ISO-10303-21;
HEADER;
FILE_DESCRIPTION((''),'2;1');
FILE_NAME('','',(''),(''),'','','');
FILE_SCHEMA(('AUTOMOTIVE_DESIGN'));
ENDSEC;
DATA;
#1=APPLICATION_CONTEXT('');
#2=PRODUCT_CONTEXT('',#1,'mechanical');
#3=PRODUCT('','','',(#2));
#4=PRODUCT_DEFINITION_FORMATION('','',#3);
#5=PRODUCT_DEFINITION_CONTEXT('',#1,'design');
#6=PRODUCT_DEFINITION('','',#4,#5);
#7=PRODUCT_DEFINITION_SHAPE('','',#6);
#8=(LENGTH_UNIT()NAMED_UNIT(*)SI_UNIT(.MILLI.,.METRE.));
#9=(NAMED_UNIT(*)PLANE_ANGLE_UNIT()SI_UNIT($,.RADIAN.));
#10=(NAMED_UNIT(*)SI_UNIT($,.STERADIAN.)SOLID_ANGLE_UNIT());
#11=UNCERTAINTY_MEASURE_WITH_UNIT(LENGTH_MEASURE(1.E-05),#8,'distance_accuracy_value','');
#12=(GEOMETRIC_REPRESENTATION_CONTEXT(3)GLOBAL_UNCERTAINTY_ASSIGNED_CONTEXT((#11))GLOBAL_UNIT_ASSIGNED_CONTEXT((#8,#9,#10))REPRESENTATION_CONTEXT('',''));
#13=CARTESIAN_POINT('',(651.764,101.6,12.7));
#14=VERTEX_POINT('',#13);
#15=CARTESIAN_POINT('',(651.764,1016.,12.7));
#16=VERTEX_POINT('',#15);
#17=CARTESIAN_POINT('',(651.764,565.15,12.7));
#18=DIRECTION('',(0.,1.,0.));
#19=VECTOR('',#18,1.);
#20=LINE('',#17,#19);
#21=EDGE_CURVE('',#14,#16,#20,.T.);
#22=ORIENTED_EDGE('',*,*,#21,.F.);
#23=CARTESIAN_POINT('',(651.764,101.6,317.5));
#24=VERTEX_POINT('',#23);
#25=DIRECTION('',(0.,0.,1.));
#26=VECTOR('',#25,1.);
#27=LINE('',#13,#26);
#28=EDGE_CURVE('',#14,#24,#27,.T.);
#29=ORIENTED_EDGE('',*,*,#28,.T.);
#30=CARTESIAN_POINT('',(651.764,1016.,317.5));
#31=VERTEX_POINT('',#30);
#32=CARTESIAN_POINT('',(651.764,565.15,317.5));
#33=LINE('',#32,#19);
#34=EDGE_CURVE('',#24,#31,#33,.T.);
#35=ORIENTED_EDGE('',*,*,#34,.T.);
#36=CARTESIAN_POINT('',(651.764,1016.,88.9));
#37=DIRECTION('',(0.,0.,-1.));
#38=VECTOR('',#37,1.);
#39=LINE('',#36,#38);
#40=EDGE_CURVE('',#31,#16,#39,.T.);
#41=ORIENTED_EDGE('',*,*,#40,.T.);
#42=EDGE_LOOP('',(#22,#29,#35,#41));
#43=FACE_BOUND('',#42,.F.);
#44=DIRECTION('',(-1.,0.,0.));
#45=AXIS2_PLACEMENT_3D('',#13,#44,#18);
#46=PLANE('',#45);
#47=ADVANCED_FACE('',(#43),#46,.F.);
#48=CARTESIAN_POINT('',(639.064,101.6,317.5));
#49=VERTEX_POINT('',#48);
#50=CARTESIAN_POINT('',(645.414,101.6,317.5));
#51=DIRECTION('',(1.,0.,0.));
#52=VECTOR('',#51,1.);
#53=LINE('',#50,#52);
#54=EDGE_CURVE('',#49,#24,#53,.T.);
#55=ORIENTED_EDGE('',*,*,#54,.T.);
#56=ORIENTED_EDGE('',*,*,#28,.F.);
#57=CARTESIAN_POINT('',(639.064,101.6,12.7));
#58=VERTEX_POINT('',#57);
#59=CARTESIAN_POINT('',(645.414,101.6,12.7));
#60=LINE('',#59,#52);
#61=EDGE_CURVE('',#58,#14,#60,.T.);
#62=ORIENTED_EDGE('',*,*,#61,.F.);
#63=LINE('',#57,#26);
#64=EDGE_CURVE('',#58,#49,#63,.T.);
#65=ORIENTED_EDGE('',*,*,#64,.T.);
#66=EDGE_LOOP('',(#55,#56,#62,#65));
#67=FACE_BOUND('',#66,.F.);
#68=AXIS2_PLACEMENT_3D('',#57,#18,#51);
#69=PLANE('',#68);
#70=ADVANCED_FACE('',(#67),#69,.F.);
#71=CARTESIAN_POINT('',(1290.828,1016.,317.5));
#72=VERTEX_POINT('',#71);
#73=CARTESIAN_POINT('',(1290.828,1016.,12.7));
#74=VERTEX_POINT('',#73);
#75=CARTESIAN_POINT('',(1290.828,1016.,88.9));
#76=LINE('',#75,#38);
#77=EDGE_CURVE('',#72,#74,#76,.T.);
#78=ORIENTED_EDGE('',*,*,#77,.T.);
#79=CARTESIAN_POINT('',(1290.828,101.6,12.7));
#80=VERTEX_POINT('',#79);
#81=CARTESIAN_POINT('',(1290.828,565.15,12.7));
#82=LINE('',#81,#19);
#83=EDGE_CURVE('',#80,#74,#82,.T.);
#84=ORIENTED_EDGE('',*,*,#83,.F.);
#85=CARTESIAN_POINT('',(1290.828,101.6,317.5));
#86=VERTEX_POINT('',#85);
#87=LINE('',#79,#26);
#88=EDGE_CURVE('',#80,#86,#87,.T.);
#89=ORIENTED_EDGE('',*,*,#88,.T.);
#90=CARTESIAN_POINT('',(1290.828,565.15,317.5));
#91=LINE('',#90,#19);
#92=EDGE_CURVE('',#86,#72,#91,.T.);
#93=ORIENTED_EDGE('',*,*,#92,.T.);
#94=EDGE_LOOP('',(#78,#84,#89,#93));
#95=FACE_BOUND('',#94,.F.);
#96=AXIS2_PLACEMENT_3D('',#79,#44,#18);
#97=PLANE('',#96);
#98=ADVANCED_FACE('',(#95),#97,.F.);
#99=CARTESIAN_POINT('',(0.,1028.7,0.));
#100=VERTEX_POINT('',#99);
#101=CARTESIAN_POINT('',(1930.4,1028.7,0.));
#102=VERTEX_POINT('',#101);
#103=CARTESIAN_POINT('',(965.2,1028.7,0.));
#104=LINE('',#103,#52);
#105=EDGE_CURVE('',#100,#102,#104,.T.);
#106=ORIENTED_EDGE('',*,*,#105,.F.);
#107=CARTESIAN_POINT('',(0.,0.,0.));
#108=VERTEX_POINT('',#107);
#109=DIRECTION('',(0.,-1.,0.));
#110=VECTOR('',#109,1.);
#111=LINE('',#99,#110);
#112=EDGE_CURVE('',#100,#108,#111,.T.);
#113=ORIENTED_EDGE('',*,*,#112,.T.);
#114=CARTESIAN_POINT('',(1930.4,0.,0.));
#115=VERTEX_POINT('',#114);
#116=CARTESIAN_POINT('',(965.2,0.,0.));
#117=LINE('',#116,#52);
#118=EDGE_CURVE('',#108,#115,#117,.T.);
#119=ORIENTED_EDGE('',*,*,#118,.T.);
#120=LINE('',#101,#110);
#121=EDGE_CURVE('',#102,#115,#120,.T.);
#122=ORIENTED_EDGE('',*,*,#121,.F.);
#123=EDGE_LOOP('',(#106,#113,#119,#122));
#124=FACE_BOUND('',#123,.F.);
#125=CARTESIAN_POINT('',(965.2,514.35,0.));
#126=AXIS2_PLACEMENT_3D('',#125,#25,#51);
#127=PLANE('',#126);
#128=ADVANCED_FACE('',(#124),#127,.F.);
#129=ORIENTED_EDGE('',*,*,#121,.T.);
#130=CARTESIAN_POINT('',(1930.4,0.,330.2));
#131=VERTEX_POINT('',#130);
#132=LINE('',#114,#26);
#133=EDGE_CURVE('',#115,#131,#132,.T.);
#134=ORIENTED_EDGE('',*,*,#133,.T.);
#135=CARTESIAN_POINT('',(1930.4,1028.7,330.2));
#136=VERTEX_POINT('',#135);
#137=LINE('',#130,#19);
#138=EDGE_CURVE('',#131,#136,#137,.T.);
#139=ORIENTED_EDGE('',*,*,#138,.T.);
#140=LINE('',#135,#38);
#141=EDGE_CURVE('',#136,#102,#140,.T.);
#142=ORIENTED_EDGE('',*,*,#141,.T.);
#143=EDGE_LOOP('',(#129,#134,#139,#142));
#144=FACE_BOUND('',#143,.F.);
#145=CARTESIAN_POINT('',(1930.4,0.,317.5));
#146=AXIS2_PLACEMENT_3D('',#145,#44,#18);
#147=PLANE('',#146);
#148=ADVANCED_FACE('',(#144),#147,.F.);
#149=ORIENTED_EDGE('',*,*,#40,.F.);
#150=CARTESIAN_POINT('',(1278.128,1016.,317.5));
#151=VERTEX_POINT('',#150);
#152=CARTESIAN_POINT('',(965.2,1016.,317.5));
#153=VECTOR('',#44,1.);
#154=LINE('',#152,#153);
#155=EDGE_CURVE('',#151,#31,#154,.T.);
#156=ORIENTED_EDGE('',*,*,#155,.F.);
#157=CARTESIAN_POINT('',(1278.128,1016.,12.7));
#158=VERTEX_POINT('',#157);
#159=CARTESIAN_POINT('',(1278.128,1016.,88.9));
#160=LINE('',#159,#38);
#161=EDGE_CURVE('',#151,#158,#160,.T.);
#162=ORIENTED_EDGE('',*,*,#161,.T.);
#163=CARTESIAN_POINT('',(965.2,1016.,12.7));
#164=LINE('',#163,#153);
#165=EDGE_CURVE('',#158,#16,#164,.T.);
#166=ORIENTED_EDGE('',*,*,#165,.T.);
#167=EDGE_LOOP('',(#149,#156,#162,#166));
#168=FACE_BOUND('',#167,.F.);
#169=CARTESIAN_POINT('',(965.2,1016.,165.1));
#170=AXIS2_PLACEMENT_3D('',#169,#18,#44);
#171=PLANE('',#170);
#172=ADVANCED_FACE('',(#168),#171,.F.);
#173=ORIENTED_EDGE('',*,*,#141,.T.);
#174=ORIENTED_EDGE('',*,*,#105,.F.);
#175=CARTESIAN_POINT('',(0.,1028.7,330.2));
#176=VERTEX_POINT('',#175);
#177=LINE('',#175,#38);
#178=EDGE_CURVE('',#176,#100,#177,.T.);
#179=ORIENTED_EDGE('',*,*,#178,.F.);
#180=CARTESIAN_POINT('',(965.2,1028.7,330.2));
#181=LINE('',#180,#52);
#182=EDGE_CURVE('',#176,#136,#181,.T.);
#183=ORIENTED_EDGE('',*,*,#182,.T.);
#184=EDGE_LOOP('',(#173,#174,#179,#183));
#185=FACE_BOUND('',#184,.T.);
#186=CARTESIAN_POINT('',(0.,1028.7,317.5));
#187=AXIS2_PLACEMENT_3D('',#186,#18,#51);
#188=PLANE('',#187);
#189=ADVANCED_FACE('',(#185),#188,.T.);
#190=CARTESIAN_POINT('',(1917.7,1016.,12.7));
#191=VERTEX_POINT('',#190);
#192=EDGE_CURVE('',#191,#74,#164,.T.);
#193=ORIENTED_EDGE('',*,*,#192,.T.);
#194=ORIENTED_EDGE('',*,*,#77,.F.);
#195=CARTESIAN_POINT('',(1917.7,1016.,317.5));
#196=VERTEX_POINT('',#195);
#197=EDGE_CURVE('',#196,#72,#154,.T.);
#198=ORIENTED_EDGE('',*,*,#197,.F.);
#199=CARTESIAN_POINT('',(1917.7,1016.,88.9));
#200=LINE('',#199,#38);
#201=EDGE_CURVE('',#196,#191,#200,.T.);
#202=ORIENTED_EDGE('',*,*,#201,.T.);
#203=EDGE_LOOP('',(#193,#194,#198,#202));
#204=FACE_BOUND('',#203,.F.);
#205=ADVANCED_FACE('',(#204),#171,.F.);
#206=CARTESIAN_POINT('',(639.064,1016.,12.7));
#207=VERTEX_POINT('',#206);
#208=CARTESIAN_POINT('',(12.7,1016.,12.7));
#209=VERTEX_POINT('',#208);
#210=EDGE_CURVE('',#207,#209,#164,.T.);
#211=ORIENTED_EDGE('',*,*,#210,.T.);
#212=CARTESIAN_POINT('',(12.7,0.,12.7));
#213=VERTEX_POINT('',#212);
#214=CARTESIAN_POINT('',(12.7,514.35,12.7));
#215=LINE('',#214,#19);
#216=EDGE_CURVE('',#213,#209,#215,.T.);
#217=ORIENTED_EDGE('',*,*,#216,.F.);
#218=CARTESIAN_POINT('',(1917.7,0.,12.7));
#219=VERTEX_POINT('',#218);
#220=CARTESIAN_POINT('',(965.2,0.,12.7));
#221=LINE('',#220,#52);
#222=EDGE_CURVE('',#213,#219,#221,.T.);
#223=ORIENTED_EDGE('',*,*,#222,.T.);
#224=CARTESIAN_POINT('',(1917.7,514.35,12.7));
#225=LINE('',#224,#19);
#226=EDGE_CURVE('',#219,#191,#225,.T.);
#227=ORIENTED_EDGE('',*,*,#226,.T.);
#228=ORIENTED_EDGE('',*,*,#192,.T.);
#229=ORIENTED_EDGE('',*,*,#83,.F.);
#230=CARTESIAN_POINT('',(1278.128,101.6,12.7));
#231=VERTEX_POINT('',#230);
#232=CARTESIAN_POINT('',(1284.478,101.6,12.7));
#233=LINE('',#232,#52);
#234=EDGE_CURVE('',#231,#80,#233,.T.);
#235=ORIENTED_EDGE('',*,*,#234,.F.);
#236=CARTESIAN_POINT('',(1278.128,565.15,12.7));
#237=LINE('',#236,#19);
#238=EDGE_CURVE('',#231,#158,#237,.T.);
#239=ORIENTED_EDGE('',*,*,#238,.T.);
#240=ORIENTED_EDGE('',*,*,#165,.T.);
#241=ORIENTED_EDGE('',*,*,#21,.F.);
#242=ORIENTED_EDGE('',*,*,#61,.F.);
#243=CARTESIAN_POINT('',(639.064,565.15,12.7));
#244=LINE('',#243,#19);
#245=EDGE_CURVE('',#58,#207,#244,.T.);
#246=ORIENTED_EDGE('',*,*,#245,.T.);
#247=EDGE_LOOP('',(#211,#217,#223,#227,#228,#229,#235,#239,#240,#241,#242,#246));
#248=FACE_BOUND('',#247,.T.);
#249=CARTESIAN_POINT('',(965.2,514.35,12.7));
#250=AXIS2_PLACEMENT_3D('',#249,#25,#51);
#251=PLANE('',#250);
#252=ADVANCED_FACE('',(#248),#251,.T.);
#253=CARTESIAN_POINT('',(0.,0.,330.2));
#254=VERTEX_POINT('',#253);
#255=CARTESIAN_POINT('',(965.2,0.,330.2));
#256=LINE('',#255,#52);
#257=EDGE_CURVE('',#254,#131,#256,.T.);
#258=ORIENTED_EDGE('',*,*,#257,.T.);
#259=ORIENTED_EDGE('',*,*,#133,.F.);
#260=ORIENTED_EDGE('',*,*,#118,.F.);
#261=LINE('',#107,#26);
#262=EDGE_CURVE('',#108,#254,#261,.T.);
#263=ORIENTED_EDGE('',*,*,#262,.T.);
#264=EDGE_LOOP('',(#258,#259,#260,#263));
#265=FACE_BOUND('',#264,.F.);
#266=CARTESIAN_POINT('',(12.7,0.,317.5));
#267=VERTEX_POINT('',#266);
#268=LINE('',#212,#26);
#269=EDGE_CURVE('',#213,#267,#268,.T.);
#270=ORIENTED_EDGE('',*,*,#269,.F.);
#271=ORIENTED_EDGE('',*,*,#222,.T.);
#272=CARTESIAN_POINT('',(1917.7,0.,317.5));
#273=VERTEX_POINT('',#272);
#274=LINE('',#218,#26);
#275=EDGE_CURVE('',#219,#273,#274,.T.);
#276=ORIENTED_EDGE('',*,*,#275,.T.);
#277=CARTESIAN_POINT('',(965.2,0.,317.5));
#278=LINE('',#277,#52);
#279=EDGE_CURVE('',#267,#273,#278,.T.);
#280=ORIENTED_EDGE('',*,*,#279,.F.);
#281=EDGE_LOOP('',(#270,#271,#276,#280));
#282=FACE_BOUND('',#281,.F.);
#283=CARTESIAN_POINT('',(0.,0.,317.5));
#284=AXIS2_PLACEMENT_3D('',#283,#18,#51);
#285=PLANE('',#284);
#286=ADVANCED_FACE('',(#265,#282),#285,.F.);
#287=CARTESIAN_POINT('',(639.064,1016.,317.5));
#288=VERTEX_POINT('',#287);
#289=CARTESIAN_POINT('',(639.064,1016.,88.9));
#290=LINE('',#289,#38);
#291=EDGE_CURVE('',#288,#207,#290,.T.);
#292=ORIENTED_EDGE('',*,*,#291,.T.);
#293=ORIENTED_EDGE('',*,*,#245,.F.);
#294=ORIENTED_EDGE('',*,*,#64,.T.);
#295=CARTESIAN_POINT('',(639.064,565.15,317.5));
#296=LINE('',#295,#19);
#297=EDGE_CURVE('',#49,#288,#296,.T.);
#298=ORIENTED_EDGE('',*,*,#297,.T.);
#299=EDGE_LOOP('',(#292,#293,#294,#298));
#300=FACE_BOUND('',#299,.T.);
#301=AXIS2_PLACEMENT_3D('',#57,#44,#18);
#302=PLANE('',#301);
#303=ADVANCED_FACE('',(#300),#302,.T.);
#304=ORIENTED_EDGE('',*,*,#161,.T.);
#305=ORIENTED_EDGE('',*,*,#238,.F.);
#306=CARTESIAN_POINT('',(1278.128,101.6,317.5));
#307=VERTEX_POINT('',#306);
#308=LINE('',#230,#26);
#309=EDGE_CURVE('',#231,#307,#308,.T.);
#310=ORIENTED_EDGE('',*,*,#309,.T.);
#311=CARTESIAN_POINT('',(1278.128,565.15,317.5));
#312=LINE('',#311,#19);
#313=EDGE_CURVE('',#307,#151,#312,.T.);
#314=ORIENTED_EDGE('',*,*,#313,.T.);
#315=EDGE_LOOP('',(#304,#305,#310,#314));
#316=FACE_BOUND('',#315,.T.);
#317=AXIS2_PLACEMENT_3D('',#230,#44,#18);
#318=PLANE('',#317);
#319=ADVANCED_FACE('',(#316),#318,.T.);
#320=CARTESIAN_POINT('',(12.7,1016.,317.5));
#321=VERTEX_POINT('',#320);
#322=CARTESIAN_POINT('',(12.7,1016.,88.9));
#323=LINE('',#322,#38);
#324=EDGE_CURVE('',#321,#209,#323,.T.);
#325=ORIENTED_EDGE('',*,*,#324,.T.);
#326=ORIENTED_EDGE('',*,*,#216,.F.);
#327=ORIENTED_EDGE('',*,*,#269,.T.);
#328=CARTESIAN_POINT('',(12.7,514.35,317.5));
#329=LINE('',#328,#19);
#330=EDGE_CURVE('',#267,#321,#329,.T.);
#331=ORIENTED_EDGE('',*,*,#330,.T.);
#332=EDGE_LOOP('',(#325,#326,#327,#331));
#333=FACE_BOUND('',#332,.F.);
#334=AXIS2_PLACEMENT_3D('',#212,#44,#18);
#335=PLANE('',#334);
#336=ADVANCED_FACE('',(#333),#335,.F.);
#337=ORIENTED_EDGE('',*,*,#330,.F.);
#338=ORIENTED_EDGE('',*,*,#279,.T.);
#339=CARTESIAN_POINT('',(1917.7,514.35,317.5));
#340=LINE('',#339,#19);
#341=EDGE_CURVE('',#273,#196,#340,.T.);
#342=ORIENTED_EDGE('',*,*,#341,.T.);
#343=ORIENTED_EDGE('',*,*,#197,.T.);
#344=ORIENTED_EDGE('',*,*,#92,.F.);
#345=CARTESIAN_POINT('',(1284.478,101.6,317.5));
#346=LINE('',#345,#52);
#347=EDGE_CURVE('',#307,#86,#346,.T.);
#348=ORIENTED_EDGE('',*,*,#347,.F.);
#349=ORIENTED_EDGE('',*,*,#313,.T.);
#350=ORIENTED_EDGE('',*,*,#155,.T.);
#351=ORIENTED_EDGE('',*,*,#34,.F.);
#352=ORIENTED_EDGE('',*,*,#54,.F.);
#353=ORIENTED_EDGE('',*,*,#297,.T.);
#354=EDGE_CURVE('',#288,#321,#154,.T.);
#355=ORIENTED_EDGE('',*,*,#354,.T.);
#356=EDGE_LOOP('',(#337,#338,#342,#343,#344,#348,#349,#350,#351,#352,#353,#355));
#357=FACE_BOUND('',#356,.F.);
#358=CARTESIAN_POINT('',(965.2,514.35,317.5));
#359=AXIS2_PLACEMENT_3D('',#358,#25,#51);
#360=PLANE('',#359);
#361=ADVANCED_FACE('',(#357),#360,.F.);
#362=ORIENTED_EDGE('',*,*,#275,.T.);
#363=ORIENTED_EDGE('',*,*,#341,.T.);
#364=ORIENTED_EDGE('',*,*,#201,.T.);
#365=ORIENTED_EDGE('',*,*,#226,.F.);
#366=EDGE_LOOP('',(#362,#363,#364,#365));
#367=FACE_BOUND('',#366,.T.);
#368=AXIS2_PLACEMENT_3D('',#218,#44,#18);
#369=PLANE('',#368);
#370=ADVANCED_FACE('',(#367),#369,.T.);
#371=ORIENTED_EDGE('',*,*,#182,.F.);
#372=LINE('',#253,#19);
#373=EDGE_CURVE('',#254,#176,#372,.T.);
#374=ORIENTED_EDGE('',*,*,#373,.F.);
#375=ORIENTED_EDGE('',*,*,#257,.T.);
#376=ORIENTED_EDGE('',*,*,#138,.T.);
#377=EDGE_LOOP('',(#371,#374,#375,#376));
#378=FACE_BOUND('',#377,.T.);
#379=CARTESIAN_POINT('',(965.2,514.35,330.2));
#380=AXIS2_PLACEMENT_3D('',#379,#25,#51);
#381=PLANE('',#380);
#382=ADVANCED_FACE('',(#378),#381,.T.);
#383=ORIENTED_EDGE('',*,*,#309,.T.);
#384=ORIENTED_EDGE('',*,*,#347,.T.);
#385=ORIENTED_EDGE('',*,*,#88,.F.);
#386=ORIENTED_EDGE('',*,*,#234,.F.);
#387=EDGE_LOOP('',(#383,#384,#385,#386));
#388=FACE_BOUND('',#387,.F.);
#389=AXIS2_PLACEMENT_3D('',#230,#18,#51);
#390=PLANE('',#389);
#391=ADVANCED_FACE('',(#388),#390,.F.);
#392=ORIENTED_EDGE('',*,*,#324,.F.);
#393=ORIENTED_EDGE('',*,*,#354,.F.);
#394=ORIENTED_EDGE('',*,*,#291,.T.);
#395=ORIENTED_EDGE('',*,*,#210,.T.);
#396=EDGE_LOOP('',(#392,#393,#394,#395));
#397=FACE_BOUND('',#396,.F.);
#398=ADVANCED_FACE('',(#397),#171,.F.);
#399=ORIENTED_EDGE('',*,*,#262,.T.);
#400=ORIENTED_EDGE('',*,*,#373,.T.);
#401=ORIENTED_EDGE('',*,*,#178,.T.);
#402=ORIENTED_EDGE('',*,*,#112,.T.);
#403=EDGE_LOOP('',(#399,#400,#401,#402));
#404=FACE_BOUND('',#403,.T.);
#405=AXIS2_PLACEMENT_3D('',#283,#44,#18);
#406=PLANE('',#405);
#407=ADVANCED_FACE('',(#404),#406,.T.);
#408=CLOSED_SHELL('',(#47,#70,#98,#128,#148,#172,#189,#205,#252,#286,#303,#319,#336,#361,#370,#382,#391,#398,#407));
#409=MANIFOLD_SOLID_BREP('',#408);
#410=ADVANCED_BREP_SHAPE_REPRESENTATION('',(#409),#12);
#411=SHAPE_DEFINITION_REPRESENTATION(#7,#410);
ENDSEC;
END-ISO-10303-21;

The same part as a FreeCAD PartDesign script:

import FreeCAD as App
import Part
import Sketcher

V = App.Vector
Q = App.Units.Quantity


def add_polygon(sketch, points):
    """Adds a closed chain of lines whose ends are joined by coincident constraints."""
    first, n = sketch.GeometryCount, len(points)
    for a, b in zip(points, points[1:] + points[:1]):
        sketch.addGeometry(Part.LineSegment(App.Vector(*a, 0), App.Vector(*b, 0)), False)
    for i in range(n):
        sketch.addConstraint(Sketcher.Constraint("Coincident", first + i, 2, first + (i + 1) % n, 1))

doc = App.newDocument("Part")
body = doc.addObject("PartDesign::Body", "Body")

sketch1 = body.newObject("Sketcher::SketchObject", "Sketch")
sketch1.AttachmentSupport = (doc.getObject("XY_Plane"), [""])
sketch1.MapMode = "FlatFace"
add_polygon(sketch1, [(0, 1029), (0, 0), (1930, 0), (1930, 1029)])
sketch1.addConstraint([
    Sketcher.Constraint("Vertical", 0),
    Sketcher.Constraint("Horizontal", 1),
    Sketcher.Constraint("Vertical", 2),
    Sketcher.Constraint("Horizontal", 3),
    Sketcher.Constraint("Coincident", 0, 2, -1, 1),
    Sketcher.Constraint("DistanceX", 1, 1, 1, 2, Q("76 in")),
    Sketcher.Constraint("DistanceY", 0, 2, 0, 1, Q("40.5 in")),
])
pad1 = body.newObject("PartDesign::Pad", "Pad")
pad1.Profile = sketch1
pad1.Length = Q("0.5 in")

sketch2 = body.newObject("Sketcher::SketchObject", "Sketch001")
sketch2.AttachmentSupport = (doc.getObject("XY_Plane"), [""])
sketch2.MapMode = "FlatFace"
sketch2.AttachmentOffset = App.Placement(V(0, 0, 0.5 * 25.4), App.Rotation())
add_polygon(sketch2, [(0, 1029), (0, 0), (13, 0), (13, 1029)])
add_polygon(sketch2, [(1918, 1029), (1918, 0), (1930, 0), (1930, 1029)])
add_polygon(sketch2, [(639, 1029), (639, 102), (652, 102), (652, 1029)])
add_polygon(sketch2, [(1278, 1029), (1278, 102), (1291, 102), (1291, 1029)])
sketch2.addConstraint([
    Sketcher.Constraint("Vertical", 0),
    Sketcher.Constraint("Horizontal", 1),
    Sketcher.Constraint("Vertical", 2),
    Sketcher.Constraint("Horizontal", 3),
    Sketcher.Constraint("Vertical", 4),
    Sketcher.Constraint("Horizontal", 5),
    Sketcher.Constraint("Vertical", 6),
    Sketcher.Constraint("Horizontal", 7),
    Sketcher.Constraint("Vertical", 8),
    Sketcher.Constraint("Horizontal", 9),
    Sketcher.Constraint("Vertical", 10),
    Sketcher.Constraint("Horizontal", 11),
    Sketcher.Constraint("Vertical", 12),
    Sketcher.Constraint("Horizontal", 13),
    Sketcher.Constraint("Vertical", 14),
    Sketcher.Constraint("Horizontal", 15),
    Sketcher.Constraint("Coincident", 0, 2, -1, 1),
    Sketcher.Constraint("PointOnObject", 4, 2, -1),
    Sketcher.Constraint("Horizontal", 3, 2, 6, 2),
    Sketcher.Constraint("Horizontal", 7, 2, 10, 2),
    Sketcher.Constraint("Horizontal", 9, 2, 12, 2),
    Sketcher.Constraint("Horizontal", 11, 2, 14, 2),
    Sketcher.Constraint("Equal", 3, 5),
    Sketcher.Constraint("Equal", 7, 9),
    Sketcher.Constraint("Equal", 11, 13),
    Sketcher.Constraint("DistanceX", 1, 1, 1, 2, Q("0.5 in")),
    Sketcher.Constraint("DistanceY", 0, 2, 0, 1, Q("40.5 in")),
    Sketcher.Constraint("DistanceY", 8, 2, 8, 1, Q("36.5 in")),
    Sketcher.Constraint("DistanceX", -1, 1, 5, 2, Q("76 in")),
    Sketcher.Constraint("DistanceX", -1, 1, 8, 2, Q("25.16 in")),
    Sketcher.Constraint("DistanceX", -1, 1, 12, 2, Q("50.32 in")),
])
pad2 = body.newObject("PartDesign::Pad", "Pad001")
pad2.Profile = sketch2
pad2.Length = Q("12 in")

sketch3 = body.newObject("Sketcher::SketchObject", "Sketch002")
sketch3.AttachmentSupport = (doc.getObject("XY_Plane"), [""])
sketch3.MapMode = "FlatFace"
sketch3.AttachmentOffset = App.Placement(V(0, 0, 12.5 * 25.4), App.Rotation())
add_polygon(sketch3, [(0, 1029), (0, 0), (1930, 0), (1930, 1029)])
sketch3.addConstraint([
    Sketcher.Constraint("Vertical", 0),
    Sketcher.Constraint("Horizontal", 1),
    Sketcher.Constraint("Vertical", 2),
    Sketcher.Constraint("Horizontal", 3),
    Sketcher.Constraint("Coincident", 0, 2, -1, 1),
    Sketcher.Constraint("DistanceX", 1, 1, 1, 2, Q("76 in")),
    Sketcher.Constraint("DistanceY", 0, 2, 0, 1, Q("40.5 in")),
])
pad3 = body.newObject("PartDesign::Pad", "Pad002")
pad3.Profile = sketch3
pad3.Length = Q("0.5 in")

sketch4 = body.newObject("Sketcher::SketchObject", "Sketch003")
sketch4.AttachmentSupport = (doc.getObject("XZ_Plane"), [""])
sketch4.MapMode = "FlatFace"
sketch4.AttachmentOffset = App.Placement(V(0, 0, -40.5 * 25.4), App.Rotation())
add_polygon(sketch4, [(1930, 330), (1930, 0), (0, 0), (0, 330)])
sketch4.addConstraint([
    Sketcher.Constraint("Vertical", 0),
    Sketcher.Constraint("Horizontal", 1),
    Sketcher.Constraint("Vertical", 2),
    Sketcher.Constraint("Horizontal", 3),
    Sketcher.Constraint("Coincident", 1, 2, -1, 1),
    Sketcher.Constraint("DistanceX", 1, 2, 1, 1, Q("76 in")),
    Sketcher.Constraint("DistanceY", 0, 2, 0, 1, Q("13 in")),
])
pad4 = body.newObject("PartDesign::Pad", "Pad003")
pad4.Profile = sketch4
pad4.Length = Q("0.5 in")

doc.recompute()
